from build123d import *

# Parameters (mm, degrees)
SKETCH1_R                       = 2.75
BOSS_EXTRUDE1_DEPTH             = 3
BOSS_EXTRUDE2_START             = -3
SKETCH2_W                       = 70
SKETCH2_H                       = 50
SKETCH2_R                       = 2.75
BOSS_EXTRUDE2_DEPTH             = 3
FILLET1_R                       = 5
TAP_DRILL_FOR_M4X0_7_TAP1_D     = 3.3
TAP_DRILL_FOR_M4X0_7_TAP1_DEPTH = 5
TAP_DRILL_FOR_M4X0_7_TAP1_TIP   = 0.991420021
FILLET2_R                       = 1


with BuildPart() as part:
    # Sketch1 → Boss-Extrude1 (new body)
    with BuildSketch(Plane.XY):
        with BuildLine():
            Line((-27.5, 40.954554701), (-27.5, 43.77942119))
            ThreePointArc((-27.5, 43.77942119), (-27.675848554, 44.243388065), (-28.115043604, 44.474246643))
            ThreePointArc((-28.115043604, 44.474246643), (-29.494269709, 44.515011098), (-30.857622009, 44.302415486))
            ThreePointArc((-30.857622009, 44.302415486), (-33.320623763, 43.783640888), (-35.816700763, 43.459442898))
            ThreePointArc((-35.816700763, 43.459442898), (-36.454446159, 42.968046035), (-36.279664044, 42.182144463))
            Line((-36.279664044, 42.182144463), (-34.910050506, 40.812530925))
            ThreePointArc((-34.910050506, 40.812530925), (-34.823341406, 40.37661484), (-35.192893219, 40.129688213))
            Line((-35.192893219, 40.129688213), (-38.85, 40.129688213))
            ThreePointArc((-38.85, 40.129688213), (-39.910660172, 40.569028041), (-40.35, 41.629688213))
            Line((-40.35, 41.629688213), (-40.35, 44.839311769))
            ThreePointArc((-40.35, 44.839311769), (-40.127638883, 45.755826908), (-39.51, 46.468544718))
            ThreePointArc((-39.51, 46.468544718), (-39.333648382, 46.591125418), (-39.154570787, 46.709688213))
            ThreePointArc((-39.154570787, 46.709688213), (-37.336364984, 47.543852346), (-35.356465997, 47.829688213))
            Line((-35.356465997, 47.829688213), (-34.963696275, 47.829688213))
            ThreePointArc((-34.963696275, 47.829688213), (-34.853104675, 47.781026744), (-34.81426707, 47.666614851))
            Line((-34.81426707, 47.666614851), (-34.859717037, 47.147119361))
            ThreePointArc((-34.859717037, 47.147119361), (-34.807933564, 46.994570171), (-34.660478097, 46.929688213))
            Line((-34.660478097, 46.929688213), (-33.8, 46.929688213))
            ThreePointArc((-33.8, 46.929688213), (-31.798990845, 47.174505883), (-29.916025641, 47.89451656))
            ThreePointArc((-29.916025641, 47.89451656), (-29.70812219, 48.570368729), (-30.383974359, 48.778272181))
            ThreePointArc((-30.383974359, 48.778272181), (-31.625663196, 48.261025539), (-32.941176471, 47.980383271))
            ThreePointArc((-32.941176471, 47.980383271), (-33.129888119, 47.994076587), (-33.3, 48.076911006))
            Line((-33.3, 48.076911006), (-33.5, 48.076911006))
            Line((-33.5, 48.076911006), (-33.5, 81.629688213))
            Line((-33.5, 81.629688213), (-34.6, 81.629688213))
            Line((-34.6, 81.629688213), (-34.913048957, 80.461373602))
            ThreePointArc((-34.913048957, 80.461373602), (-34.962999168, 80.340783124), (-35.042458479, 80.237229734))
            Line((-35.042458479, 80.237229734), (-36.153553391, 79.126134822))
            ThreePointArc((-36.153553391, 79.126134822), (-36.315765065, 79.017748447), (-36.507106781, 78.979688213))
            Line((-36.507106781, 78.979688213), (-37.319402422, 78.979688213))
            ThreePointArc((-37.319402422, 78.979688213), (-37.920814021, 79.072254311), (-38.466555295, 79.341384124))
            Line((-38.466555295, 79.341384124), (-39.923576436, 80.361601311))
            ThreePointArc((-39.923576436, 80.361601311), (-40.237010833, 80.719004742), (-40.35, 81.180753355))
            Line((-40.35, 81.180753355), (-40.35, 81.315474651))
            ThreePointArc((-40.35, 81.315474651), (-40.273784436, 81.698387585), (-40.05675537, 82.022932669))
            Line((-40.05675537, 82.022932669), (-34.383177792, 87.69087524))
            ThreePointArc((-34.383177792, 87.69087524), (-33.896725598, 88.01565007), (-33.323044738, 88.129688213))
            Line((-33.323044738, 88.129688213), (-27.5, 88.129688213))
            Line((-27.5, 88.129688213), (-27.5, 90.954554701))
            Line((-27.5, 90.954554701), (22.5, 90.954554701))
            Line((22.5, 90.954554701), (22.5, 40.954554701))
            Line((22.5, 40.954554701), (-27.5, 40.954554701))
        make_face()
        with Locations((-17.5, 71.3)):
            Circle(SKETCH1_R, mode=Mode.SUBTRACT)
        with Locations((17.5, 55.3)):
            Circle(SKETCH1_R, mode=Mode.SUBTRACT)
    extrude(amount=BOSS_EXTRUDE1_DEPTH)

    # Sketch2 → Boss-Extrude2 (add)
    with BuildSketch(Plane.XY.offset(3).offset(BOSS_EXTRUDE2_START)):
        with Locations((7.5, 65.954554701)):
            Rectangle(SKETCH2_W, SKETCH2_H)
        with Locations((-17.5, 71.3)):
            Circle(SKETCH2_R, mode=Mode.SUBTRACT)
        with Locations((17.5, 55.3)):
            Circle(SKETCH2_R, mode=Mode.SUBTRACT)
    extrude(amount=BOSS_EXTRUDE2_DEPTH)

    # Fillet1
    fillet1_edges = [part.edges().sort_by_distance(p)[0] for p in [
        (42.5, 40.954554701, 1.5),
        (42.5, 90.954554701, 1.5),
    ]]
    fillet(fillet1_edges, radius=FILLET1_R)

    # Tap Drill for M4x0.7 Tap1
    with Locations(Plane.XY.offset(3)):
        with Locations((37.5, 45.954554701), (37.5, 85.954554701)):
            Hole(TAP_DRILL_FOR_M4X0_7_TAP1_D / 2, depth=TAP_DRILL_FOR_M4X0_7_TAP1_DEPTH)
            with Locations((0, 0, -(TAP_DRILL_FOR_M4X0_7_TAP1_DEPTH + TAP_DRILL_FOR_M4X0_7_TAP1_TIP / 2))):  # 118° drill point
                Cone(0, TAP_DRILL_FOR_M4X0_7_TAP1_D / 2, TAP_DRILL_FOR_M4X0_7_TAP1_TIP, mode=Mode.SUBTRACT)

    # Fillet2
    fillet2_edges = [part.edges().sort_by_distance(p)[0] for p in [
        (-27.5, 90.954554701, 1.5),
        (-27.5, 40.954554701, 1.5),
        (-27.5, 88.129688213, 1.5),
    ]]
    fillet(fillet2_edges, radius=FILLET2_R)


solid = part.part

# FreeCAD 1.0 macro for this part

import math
import FreeCAD as App
import Part
import Sketcher
Q = App.Units.Quantity


def edges_at(feature, points):
    """Names of the edges that pass closest to the given points."""
    edges = feature.Shape.Edges
    near = lambda p: min(range(len(edges)), key=lambda i: edges[i].distToShape(Part.Vertex(*p))[0])
    return sorted({f"Edge{near(p) + 1}" for p in points})

doc = App.newDocument("Part")
params = doc.addObject("Spreadsheet::Sheet", "Params")
for row, (alias, value) in enumerate([
    ("sketch1_radius", "1 mm"),
    ("sketch1_radius2", "2 mm"),
    ("sketch1_radius3", "7 mm"),
    ("sketch1_diameter", "5.5 mm"),
    ("sketch1_radius4", "1.5 mm"),
    ("pad1_length", "3 mm"),
    ("sketch2_diameter", "5.5 mm"),
    ("sketch2_width", "70 mm"),
    ("sketch2_height", "50 mm"),
    ("pad2_length", "3 mm"),
    ("fillet_radius", "5 mm"),
    ("sketch3_diameter", "3.3 mm"),
    ("hole_diameter", "3.3 mm"),
    ("hole_depth", "5 mm"),
    ("fillet2_radius", "1 mm"),
], start=1):
    params.set(f"A{row}", alias)
    params.set(f"B{row}", "=" + value)
    params.setAlias(f"B{row}", alias)

body = doc.addObject("PartDesign::Body", "Body")

# Sketch on XY plane
sketch1 = body.newObject("Sketcher::SketchObject", "Sketch")
sketch1.AttachmentSupport = (doc.getObject("XY_Plane"), [""])
sketch1.MapMode = "FlatFace"
sketch1.addGeometry([
    Part.LineSegment(App.Vector(-27.5, 43.78, 0), App.Vector(-27.5, 40.95, 0)),  # 0
    Part.LineSegment(App.Vector(-27.5, 40.95, 0), App.Vector(22.5, 40.95, 0)),  # 1
    Part.LineSegment(App.Vector(22.5, 40.95, 0), App.Vector(22.5, 90.95, 0)),  # 2
    Part.LineSegment(App.Vector(22.5, 90.95, 0), App.Vector(-27.5, 90.95, 0)),  # 3
    Part.LineSegment(App.Vector(-27.5, 90.95, 0), App.Vector(-27.5, 88.13, 0)),  # 4
    Part.LineSegment(App.Vector(-27.5, 88.13, 0), App.Vector(-33.32, 88.13, 0)),  # 5
    Part.ArcOfCircle(Part.Circle(App.Vector(-33.32, 86.63, 0), App.Vector(0, 0, 1), 1.5), math.radians(90), math.radians(135)),  # 6
    Part.LineSegment(App.Vector(-34.38, 87.69, 0), App.Vector(-40.06, 82.02, 0)),  # 7
    Part.ArcOfCircle(Part.Circle(App.Vector(-39.35, 81.32, 0), App.Vector(0, 0, 1), 1), math.radians(135), math.radians(180)),  # 8
    Part.LineSegment(App.Vector(-40.35, 81.32, 0), App.Vector(-40.35, 81.18, 0)),  # 9
    Part.ArcOfCircle(Part.Circle(App.Vector(-39.35, 81.18, 0), App.Vector(0, 0, 1), 1), math.radians(-180), math.radians(-125)),  # 10
    Part.LineSegment(App.Vector(-39.92, 80.36, 0), App.Vector(-38.47, 79.34, 0)),  # 11
    Part.ArcOfCircle(Part.Circle(App.Vector(-37.32, 80.98, 0), App.Vector(0, 0, 1), 2), math.radians(-125), math.radians(-90)),  # 12
    Part.LineSegment(App.Vector(-37.32, 78.98, 0), App.Vector(-36.51, 78.98, 0)),  # 13
    Part.ArcOfCircle(Part.Circle(App.Vector(-36.51, 79.48, 0), App.Vector(0, 0, 1), 0.5), math.radians(-90), math.radians(-45)),  # 14
    Part.LineSegment(App.Vector(-36.15, 79.13, 0), App.Vector(-35.04, 80.24, 0)),  # 15
    Part.ArcOfCircle(Part.Circle(App.Vector(-35.4, 80.59, 0), App.Vector(0, 0, 1), 0.5), math.radians(-45), math.radians(-15)),  # 16
    Part.LineSegment(App.Vector(-34.91, 80.46, 0), App.Vector(-34.6, 81.63, 0)),  # 17
    Part.LineSegment(App.Vector(-34.6, 81.63, 0), App.Vector(-33.5, 81.63, 0)),  # 18
    Part.LineSegment(App.Vector(-33.5, 81.63, 0), App.Vector(-33.5, 48.08, 0)),  # 19
    Part.LineSegment(App.Vector(-33.5, 48.08, 0), App.Vector(-33.3, 48.08, 0)),  # 20
    Part.ArcOfCircle(Part.Circle(App.Vector(-33, 48.48, 0), App.Vector(0, 0, 1), 0.5), math.radians(-127), math.radians(-83)),  # 21
    Part.ArcOfCircle(Part.Circle(App.Vector(-33.8, 55.23, 0), App.Vector(0, 0, 1), 7.3), math.radians(-83), math.radians(-62)),  # 22
    Part.ArcOfCircle(Part.Circle(App.Vector(-30.15, 48.34, 0), App.Vector(0, 0, 1), 0.5), math.radians(-62), math.radians(118)),  # 23
    Part.ArcOfCircle(Part.Circle(App.Vector(-33.8, 55.23, 0), App.Vector(0, 0, 1), 8.3), math.radians(-90), math.radians(-62)),  # 24
    Part.LineSegment(App.Vector(-33.8, 46.93, 0), App.Vector(-34.66, 46.93, 0)),  # 25
    Part.ArcOfCircle(Part.Circle(App.Vector(-34.66, 47.13, 0), App.Vector(0, 0, 1), 0.2), math.radians(175), math.radians(270)),  # 26
    Part.LineSegment(App.Vector(-34.86, 47.15, 0), App.Vector(-34.81, 47.67, 0)),  # 27
    Part.ArcOfCircle(Part.Circle(App.Vector(-34.96, 47.68, 0), App.Vector(0, 0, 1), 0.15), math.radians(-5), math.radians(90)),  # 28
    Part.LineSegment(App.Vector(-34.96, 47.83, 0), App.Vector(-35.36, 47.83, 0)),  # 29
    Part.ArcOfCircle(Part.Circle(App.Vector(-35.36, 40.83, 0), App.Vector(0, 0, 1), 7), math.radians(90), math.radians(123)),  # 30
    Part.ArcOfCircle(Part.Circle(App.Vector(-34, 38.73, 0), App.Vector(0, 0, 1), 9.5), math.radians(122.86), math.radians(125.45)),  # 31
    Part.ArcOfCircle(Part.Circle(App.Vector(-38.35, 44.84, 0), App.Vector(0, 0, 1), 2), math.radians(125), math.radians(180)),  # 32
    Part.LineSegment(App.Vector(-40.35, 44.84, 0), App.Vector(-40.35, 41.63, 0)),  # 33
    Part.ArcOfCircle(Part.Circle(App.Vector(-38.85, 41.63, 0), App.Vector(0, 0, 1), 1.5), math.radians(180), math.radians(270)),  # 34
    Part.LineSegment(App.Vector(-38.85, 40.13, 0), App.Vector(-35.19, 40.13, 0)),  # 35
    Part.ArcOfCircle(Part.Circle(App.Vector(-35.19, 40.53, 0), App.Vector(0, 0, 1), 0.4), math.radians(-90), math.radians(45)),  # 36
    Part.LineSegment(App.Vector(-34.91, 40.81, 0), App.Vector(-36.28, 42.18, 0)),  # 37
    Part.ArcOfCircle(Part.Circle(App.Vector(-35.75, 42.71, 0), App.Vector(0, 0, 1), 0.75), math.radians(95), math.radians(225)),  # 38
    Part.ArcOfCircle(Part.Circle(App.Vector(-38.7, 75.43, 0), App.Vector(0, 0, 1), 32.1), math.radians(-84.85), math.radians(-75.86)),  # 39
    Part.ArcOfCircle(Part.Circle(App.Vector(-29.03, 37.03, 0), App.Vector(0, 0, 1), 7.5), math.radians(83), math.radians(104)),  # 40
    Part.ArcOfCircle(Part.Circle(App.Vector(-28.2, 43.78, 0), App.Vector(0, 0, 1), 0.7), math.radians(0), math.radians(83)),  # 41
    Part.Circle(App.Vector(17.5, 55.3, 0), App.Vector(0, 0, 1), 2.75),  # 42
    Part.Circle(App.Vector(-17.5, 71.3, 0), App.Vector(0, 0, 1), 2.75),  # 43
], False)
sketch1.addConstraint([
    Sketcher.Constraint("Coincident", 0, 2, 1, 1),
    Sketcher.Constraint("Coincident", 1, 2, 2, 1),
    Sketcher.Constraint("Coincident", 2, 2, 3, 1),
    Sketcher.Constraint("Coincident", 3, 2, 4, 1),
    Sketcher.Constraint("Coincident", 4, 2, 5, 1),
    Sketcher.Constraint("Tangent", 5, 2, 6, 1),
    Sketcher.Constraint("Tangent", 6, 2, 7, 1),
    Sketcher.Constraint("Tangent", 7, 2, 8, 1),
    Sketcher.Constraint("Tangent", 8, 2, 9, 1),
    Sketcher.Constraint("Tangent", 9, 2, 10, 1),
    Sketcher.Constraint("Tangent", 10, 2, 11, 1),
    Sketcher.Constraint("Tangent", 11, 2, 12, 1),
    Sketcher.Constraint("Tangent", 12, 2, 13, 1),
    Sketcher.Constraint("Tangent", 13, 2, 14, 1),
    Sketcher.Constraint("Tangent", 14, 2, 15, 1),
    Sketcher.Constraint("Tangent", 15, 2, 16, 1),
    Sketcher.Constraint("Tangent", 16, 2, 17, 1),
    Sketcher.Constraint("Coincident", 17, 2, 18, 1),
    Sketcher.Constraint("Coincident", 18, 2, 19, 1),
    Sketcher.Constraint("Coincident", 19, 2, 20, 1),
    Sketcher.Constraint("Coincident", 20, 2, 21, 1),
    Sketcher.Constraint("Tangent", 21, 2, 22, 1),
    Sketcher.Constraint("Tangent", 22, 2, 23, 2),
    Sketcher.Constraint("Tangent", 23, 1, 24, 2),
    Sketcher.Constraint("Tangent", 24, 1, 25, 1),
    Sketcher.Constraint("Tangent", 25, 2, 26, 2),
    Sketcher.Constraint("Tangent", 26, 1, 27, 1),
    Sketcher.Constraint("Tangent", 27, 2, 28, 1),
    Sketcher.Constraint("Tangent", 28, 2, 29, 1),
    Sketcher.Constraint("Tangent", 29, 2, 30, 1),
    Sketcher.Constraint("Tangent", 30, 2, 31, 1),
    Sketcher.Constraint("Tangent", 31, 2, 32, 1),
    Sketcher.Constraint("Tangent", 32, 2, 33, 1),
    Sketcher.Constraint("Tangent", 33, 2, 34, 1),
    Sketcher.Constraint("Tangent", 34, 2, 35, 1),
    Sketcher.Constraint("Tangent", 35, 2, 36, 1),
    Sketcher.Constraint("Tangent", 36, 2, 37, 1),
    Sketcher.Constraint("Tangent", 37, 2, 38, 2),
    Sketcher.Constraint("Tangent", 38, 1, 39, 1),
    Sketcher.Constraint("Tangent", 39, 2, 40, 2),
    Sketcher.Constraint("Tangent", 40, 1, 41, 2),
    Sketcher.Constraint("Tangent", 41, 1, 0, 1),
    Sketcher.Constraint("Vertical", 0),
    Sketcher.Constraint("Horizontal", 1),
    Sketcher.Constraint("Vertical", 2),
    Sketcher.Constraint("Horizontal", 3),
    Sketcher.Constraint("Vertical", 4),
    Sketcher.Constraint("Horizontal", 5),
    Sketcher.Constraint("Vertical", 9),
    Sketcher.Constraint("Horizontal", 13),
    Sketcher.Constraint("Horizontal", 18),
    Sketcher.Constraint("Vertical", 19),
    Sketcher.Constraint("Horizontal", 20),
    Sketcher.Constraint("Horizontal", 25),
    Sketcher.Constraint("Horizontal", 29),
    Sketcher.Constraint("Vertical", 33),
    Sketcher.Constraint("Horizontal", 35),
    Sketcher.Constraint("Coincident", 24, 3, 22, 3),
    Sketcher.Constraint("Equal", 8, 10),
    Sketcher.Constraint("Equal", 14, 16),
    Sketcher.Constraint("Equal", 16, 21),
    Sketcher.Constraint("Equal", 21, 23),
    Sketcher.Constraint("Equal", 12, 32),
    Sketcher.Constraint("Equal", 6, 34),
    Sketcher.Constraint("Equal", 42, 43),
    Sketcher.Constraint("Perpendicular", 15, 37),
    Sketcher.Constraint("Vertical", 0, 2, 3, 2),
    Sketcher.Constraint("Vertical", 9, 2, 32, 2),
    Sketcher.Constraint("Equal", 3, 2),
    Sketcher.Constraint("Equal", 0, 4),
    Sketcher.Constraint("Radius", 8, 1.0),
    Sketcher.Constraint("Radius", 12, 2.0),
    Sketcher.Constraint("Radius", 30, 7.0),
    Sketcher.Constraint("Diameter", 42, 5.5),
    Sketcher.Constraint("Radius", 6, 1.5),
    Sketcher.Constraint("Radius", 14, 0.5),
    Sketcher.Constraint("Radius", 22, 7.3),
    Sketcher.Constraint("Radius", 26, 0.2),
    Sketcher.Constraint("Radius", 36, 0.4),
    Sketcher.Constraint("Radius", 39, 32.1),
    Sketcher.Constraint("Radius", 40, 7.5),
    Sketcher.Constraint("Radius", 41, 0.7),
    Sketcher.Constraint("DistanceX", 1, 1, 1, 2, 50.0),
    Sketcher.Constraint("Angle", 11, Q("-35 deg")),
    Sketcher.Constraint("Angle", 15, Q("45 deg")),
    Sketcher.Constraint("Angle", 17, Q("75 deg")),
    Sketcher.Constraint("Angle", 27, Q("85 deg")),
    Sketcher.Constraint("Radius", 28, 0.15),
    Sketcher.Constraint("Radius", 38, 0.75),
    Sketcher.Constraint("DistanceX", 18, 1, 18, 2, 1.1),
    Sketcher.Constraint("DistanceX", 20, 1, 20, 2, 0.2),
    Sketcher.Constraint("DistanceX", 21, 3, -1, 1, 33.0),
    Sketcher.Constraint("DistanceX", 31, 3, -1, 1, 33.999999),
    Sketcher.Constraint("DistanceX", 22, 3, -1, 1, 33.8),
    Sketcher.Constraint("DistanceX", 39, 3, -1, 1, 38.7),
    Sketcher.Constraint("DistanceX", 41, 3, -1, 1, 28.2),
    Sketcher.Constraint("DistanceX", -1, 1, 42, 3, 17.5),
    Sketcher.Constraint("DistanceY", -1, 1, 42, 3, 55.3),
    Sketcher.Constraint("DistanceX", 43, 3, -1, 1, 17.5),
    Sketcher.Constraint("DistanceY", -1, 1, 43, 3, 71.3),
    Sketcher.Constraint("DistanceX", 17, 2, -1, 1, 34.6),
    Sketcher.Constraint("DistanceX", 8, 3, -1, 1, 39.35),
    Sketcher.Constraint("DistanceX", 23, 3, -1, 1, 30.15),
    Sketcher.Constraint("DistanceX", 31, 2, -1, 1, 39.51),
    Sketcher.Constraint("DistanceX", 25, 2, 25, 1, 0.860478),
    Sketcher.Constraint("DistanceX", 29, 2, 29, 1, 0.39277),
    Sketcher.Constraint("DistanceY", 9, 2, 9, 1, 0.134721),
    Sketcher.Constraint("DistanceY", -1, 1, 10, 2, 80.361601),
    Sketcher.Constraint("DistanceX", 38, 1, -1, 1, 35.816701),
    Sketcher.Constraint("Distance", 17, 1.209528),
    Sketcher.Constraint("Distance", 27, 0.52148),
    Sketcher.Constraint("DistanceX", 5, 2, 5, 1, 5.823045),
    Sketcher.Constraint("DistanceX", 13, 1, 13, 2, 0.812296),
    Sketcher.Constraint("DistanceX", 35, 1, 35, 2, 3.657107),
    Sketcher.Constraint("DistanceY", 0, 2, 0, 1, 2.824866),
    Sketcher.Constraint("DistanceY", 19, 2, 19, 1, 33.552777),
    Sketcher.Constraint("DistanceY", 33, 2, 33, 1, 3.209624),
    Sketcher.Constraint("DistanceY", -1, 1, 6, 3, 86.629688),
    Sketcher.Constraint("DistanceY", -1, 1, 12, 3, 80.979688),
])
sketch1.setExpression("Constraints[70]", "Params.sketch1_radius")
sketch1.setExpression("Constraints[71]", "Params.sketch1_radius2")
sketch1.setExpression("Constraints[72]", "Params.sketch1_radius3")
sketch1.setExpression("Constraints[73]", "Params.sketch1_diameter")
sketch1.setExpression("Constraints[74]", "Params.sketch1_radius4")
pad1 = body.newObject("PartDesign::Pad", "Pad")
pad1.Profile = sketch1
pad1.setExpression("Length", "Params.pad1_length")

# Sketch on XY plane
sketch2 = body.newObject("Sketcher::SketchObject", "Sketch001")
sketch2.AttachmentSupport = (doc.getObject("XY_Plane"), [""])
sketch2.MapMode = "FlatFace"
sketch2.addGeometry([
    Part.LineSegment(App.Vector(-27.5, 91, 0), App.Vector(-27.5, 41, 0)),  # 0
    Part.LineSegment(App.Vector(-27.5, 41, 0), App.Vector(42.5, 41, 0)),  # 1
    Part.LineSegment(App.Vector(42.5, 41, 0), App.Vector(42.5, 91, 0)),  # 2
    Part.LineSegment(App.Vector(42.5, 91, 0), App.Vector(-27.5, 91, 0)),  # 3
    Part.Circle(App.Vector(17.5, 55.3, 0), App.Vector(0, 0, 1), 2.8),  # 4
    Part.Circle(App.Vector(-17.5, 71.3, 0), App.Vector(0, 0, 1), 2.8),  # 5
], False)
sketch2.addConstraint([
    Sketcher.Constraint("Coincident", 0, 2, 1, 1),
    Sketcher.Constraint("Coincident", 1, 2, 2, 1),
    Sketcher.Constraint("Coincident", 2, 2, 3, 1),
    Sketcher.Constraint("Coincident", 3, 2, 0, 1),
    Sketcher.Constraint("Vertical", 0),
    Sketcher.Constraint("Horizontal", 1),
    Sketcher.Constraint("Vertical", 2),
    Sketcher.Constraint("Horizontal", 3),
    Sketcher.Constraint("Equal", 4, 5),
    Sketcher.Constraint("Diameter", 4, 5.5),
    Sketcher.Constraint("DistanceX", 1, 1, 1, 2, 70.0),
    Sketcher.Constraint("DistanceY", 0, 2, 0, 1, 50.0),
    Sketcher.Constraint("DistanceX", 5, 3, 4, 3, 35.0),
    Sketcher.Constraint("DistanceY", 4, 3, 5, 3, 16.0),
    Sketcher.Constraint("DistanceX", 0, 2, 5, 3, 10.0),
    Sketcher.Constraint("DistanceX", -1, 1, 4, 3, 17.5),
    Sketcher.Constraint("DistanceY", -1, 1, 4, 3, 55.3),
    Sketcher.Constraint("DistanceY", -1, 1, 0, 2, 40.954555),
])
sketch2.setExpression("Constraints[9]", "Params.sketch2_diameter")
sketch2.setExpression("Constraints[10]", "Params.sketch2_width")
sketch2.setExpression("Constraints[11]", "Params.sketch2_height")
pad2 = body.newObject("PartDesign::Pad", "Pad001")
pad2.Profile = sketch2
pad2.setExpression("Length", "Params.pad2_length")
doc.recompute()

fillet = body.newObject("PartDesign::Fillet", "Fillet")
fillet.Base = (pad2, edges_at(pad2, [(42.5, 40.955, 1.5), (42.5, 90.955, 1.5)]))
fillet.setExpression("Radius", "Params.fillet_radius")

# Sketch on XY plane
sketch3 = body.newObject("Sketcher::SketchObject", "Sketch002")
sketch3.AttachmentSupport = (doc.getObject("XY_Plane"), [""])
sketch3.MapMode = "FlatFace"
sketch3.AttachmentOffset = App.Placement(App.Vector(0, 0, 3), App.Rotation())
sketch3.addGeometry([
    Part.Circle(App.Vector(37.5, 46, 0), App.Vector(0, 0, 1), 1.6),
    Part.Circle(App.Vector(37.5, 86, 0), App.Vector(0, 0, 1), 1.6),
], False)
sketch3.addConstraint([
    Sketcher.Constraint("Equal", 0, 1),
    Sketcher.Constraint("Vertical", 0, 3, 1, 3),
    Sketcher.Constraint("Diameter", 0, 3.3),
    Sketcher.Constraint("DistanceY", 0, 3, 1, 3, 40.0),
    Sketcher.Constraint("DistanceX", -1, 1, 0, 3, 37.5),
    Sketcher.Constraint("DistanceY", -1, 1, 0, 3, 45.954555),
])
sketch3.setExpression("Constraints[2]", "Params.sketch3_diameter")
doc.recompute()
hole = body.newObject("PartDesign::Hole", "Hole")
hole.Profile = sketch3
hole.ThreadType = "None"
hole.setExpression("Diameter", "Params.hole_diameter")
hole.DepthType = "Dimension"
hole.setExpression("Depth", "Params.hole_depth")
hole.DrillPoint = "Angled"
hole.DrillPointAngle = 118
doc.recompute()

fillet2 = body.newObject("PartDesign::Fillet", "Fillet001")
fillet2.Base = (hole, edges_at(hole, [(-27.5, 90.955, 1.5), (-27.5, 40.955, 1.5), (-27.5, 88.13, 1.5)]))
fillet2.setExpression("Radius", "Params.fillet2_radius")

doc.recompute()
